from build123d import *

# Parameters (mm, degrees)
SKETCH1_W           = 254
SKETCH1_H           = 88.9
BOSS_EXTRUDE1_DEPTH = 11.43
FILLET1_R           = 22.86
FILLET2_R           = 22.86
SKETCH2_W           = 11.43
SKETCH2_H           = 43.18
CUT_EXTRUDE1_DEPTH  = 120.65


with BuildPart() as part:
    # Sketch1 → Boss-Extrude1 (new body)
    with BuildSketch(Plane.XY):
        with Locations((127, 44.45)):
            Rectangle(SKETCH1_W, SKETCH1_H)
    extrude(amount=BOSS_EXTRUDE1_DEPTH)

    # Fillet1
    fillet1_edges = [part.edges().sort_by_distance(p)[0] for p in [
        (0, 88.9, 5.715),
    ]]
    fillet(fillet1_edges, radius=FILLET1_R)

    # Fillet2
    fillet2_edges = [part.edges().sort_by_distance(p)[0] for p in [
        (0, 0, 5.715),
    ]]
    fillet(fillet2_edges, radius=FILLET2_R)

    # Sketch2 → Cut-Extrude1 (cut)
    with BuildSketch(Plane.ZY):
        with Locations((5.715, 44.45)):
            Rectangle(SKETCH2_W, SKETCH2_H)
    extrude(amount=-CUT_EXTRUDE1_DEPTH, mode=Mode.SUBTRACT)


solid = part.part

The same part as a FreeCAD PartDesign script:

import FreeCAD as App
import Part
import Sketcher

V = App.Vector
Q = App.Units.Quantity


def edges_at(feature, points):
    """Names of the edges that pass closest to the given points."""
    edges = feature.Shape.Edges
    near = lambda p: min(range(len(edges)), key=lambda i: edges[i].distToShape(Part.Vertex(*p))[0])
    return sorted({f"Edge{near(p) + 1}" for p in points})


def add_polygon(sketch, points):
    """Adds a closed chain of lines whose ends are joined by coincident constraints."""
    first, n = sketch.GeometryCount, len(points)
    for a, b in zip(points, points[1:] + points[:1]):
        sketch.addGeometry(Part.LineSegment(App.Vector(*a, 0), App.Vector(*b, 0)), False)
    for i in range(n):
        sketch.addConstraint(Sketcher.Constraint("Coincident", first + i, 2, first + (i + 1) % n, 1))

doc = App.newDocument("Part")
body = doc.addObject("PartDesign::Body", "Body")

sketch1 = body.newObject("Sketcher::SketchObject", "Sketch")
sketch1.AttachmentSupport = (doc.getObject("XY_Plane"), [""])
sketch1.MapMode = "FlatFace"
add_polygon(sketch1, [(0, 89), (0, 0), (254, 0), (254, 89)])
sketch1.addConstraint([
    Sketcher.Constraint("Vertical", 0),
    Sketcher.Constraint("Horizontal", 1),
    Sketcher.Constraint("Vertical", 2),
    Sketcher.Constraint("Horizontal", 3),
    Sketcher.Constraint("Coincident", 0, 2, -1, 1),
    Sketcher.Constraint("DistanceX", 1, 1, 1, 2, Q("10 in")),
    Sketcher.Constraint("DistanceY", 0, 2, 0, 1, Q("3.5 in")),
])
pad1 = body.newObject("PartDesign::Pad", "Pad")
pad1.Profile = sketch1
pad1.Length = Q("0.45 in")
doc.recompute()

fillet = body.newObject("PartDesign::Fillet", "Fillet")
fillet.Base = (pad1, edges_at(pad1, [(0, 88.9, 5.715)]))
fillet.Radius = Q("0.9 in")
doc.recompute()

fillet2 = body.newObject("PartDesign::Fillet", "Fillet001")
fillet2.Base = (fillet, edges_at(fillet, [(0, 0, 5.715)]))
fillet2.Radius = Q("0.9 in")

sketch2 = body.newObject("Sketcher::SketchObject", "Sketch001")
sketch2.AttachmentSupport = (doc.getObject("YZ_Plane"), [""])
sketch2.MapMode = "FlatFace"
add_polygon(sketch2, [(66, 0), (23, 0), (23, 11), (66, 11)])
sketch2.addConstraint([
    Sketcher.Constraint("Horizontal", 0),
    Sketcher.Constraint("Vertical", 1),
    Sketcher.Constraint("Horizontal", 2),
    Sketcher.Constraint("Vertical", 3),
    Sketcher.Constraint("PointOnObject", 0, 2, -1),
    Sketcher.Constraint("DistanceX", 0, 2, 0, 1, Q("1.7 in")),
    Sketcher.Constraint("DistanceY", 1, 1, 1, 2, Q("0.45 in")),
    Sketcher.Constraint("DistanceX", -1, 1, 0, 2, Q("0.9 in")),
])
pocket1 = body.newObject("PartDesign::Pocket", "Pocket")
pocket1.Profile = sketch2
pocket1.Length = Q("4.75 in")
pocket1.Reversed = True

doc.recompute()
